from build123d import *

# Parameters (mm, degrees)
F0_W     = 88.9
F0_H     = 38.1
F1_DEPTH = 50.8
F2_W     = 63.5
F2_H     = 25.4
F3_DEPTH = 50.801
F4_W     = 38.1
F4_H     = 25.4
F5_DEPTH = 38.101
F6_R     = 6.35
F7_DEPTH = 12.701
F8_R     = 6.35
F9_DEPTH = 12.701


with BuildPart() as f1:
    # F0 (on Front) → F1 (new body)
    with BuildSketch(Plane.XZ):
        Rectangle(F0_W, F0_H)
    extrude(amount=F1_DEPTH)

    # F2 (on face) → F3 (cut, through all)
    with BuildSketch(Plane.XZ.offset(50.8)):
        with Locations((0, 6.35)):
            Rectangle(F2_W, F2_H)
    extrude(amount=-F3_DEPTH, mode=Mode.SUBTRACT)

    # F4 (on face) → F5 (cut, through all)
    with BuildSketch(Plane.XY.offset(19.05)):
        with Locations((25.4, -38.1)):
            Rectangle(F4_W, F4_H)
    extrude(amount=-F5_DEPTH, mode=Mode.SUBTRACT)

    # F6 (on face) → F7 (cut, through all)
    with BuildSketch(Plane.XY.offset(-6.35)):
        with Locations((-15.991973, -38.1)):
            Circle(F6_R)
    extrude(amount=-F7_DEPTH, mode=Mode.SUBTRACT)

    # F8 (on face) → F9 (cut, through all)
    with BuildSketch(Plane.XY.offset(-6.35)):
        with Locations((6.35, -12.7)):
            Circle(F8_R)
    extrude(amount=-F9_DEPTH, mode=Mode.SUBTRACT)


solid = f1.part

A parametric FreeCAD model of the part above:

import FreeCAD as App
import Part
import Sketcher
Q = App.Units.Quantity


def add_polygon(sketch, points):
    """Adds a closed chain of lines whose ends are joined by coincident constraints."""
    first, n = sketch.GeometryCount, len(points)
    for a, b in zip(points, points[1:] + points[:1]):
        sketch.addGeometry(Part.LineSegment(App.Vector(*a, 0), App.Vector(*b, 0)), False)
    for i in range(n):
        sketch.addConstraint(Sketcher.Constraint("Coincident", first + i, 2, first + (i + 1) % n, 1))

doc = App.newDocument("Part")
body = doc.addObject("PartDesign::Body", "Body")

# Sketch on XZ plane
sketch1 = body.newObject("Sketcher::SketchObject", "Sketch")
sketch1.AttachmentSupport = (doc.getObject("XZ_Plane"), [""])
sketch1.MapMode = "FlatFace"
add_polygon(sketch1, [(-44, 19), (-44, -19), (44, -19), (44, 19)])  # lines 0-3
sketch1.addConstraint([
    Sketcher.Constraint("Vertical", 0),
    Sketcher.Constraint("Horizontal", 1),
    Sketcher.Constraint("Vertical", 2),
    Sketcher.Constraint("Horizontal", 3),
    Sketcher.Constraint("Symmetric", 0, 2, 2, 2, -1, 1),
    Sketcher.Constraint("DistanceX", 1, 1, 1, 2, Q("3.5 in")),
    Sketcher.Constraint("DistanceY", 0, 2, 0, 1, Q("1.5 in")),
])
pad1 = body.newObject("PartDesign::Pad", "Pad")
pad1.Profile = sketch1
pad1.Length = Q("2 in")

# Sketch on XZ plane
sketch2 = body.newObject("Sketcher::SketchObject", "Sketch001")
sketch2.AttachmentSupport = (doc.getObject("XZ_Plane"), [""])
sketch2.MapMode = "FlatFace"
sketch2.AttachmentOffset = App.Placement(App.Vector(0, 0, 2 * 25.4), App.Rotation())
add_polygon(sketch2, [(-32, 19), (-32, -6), (32, -6), (32, 19)])  # lines 0-3
sketch2.addConstraint([
    Sketcher.Constraint("Vertical", 0),
    Sketcher.Constraint("Horizontal", 1),
    Sketcher.Constraint("Vertical", 2),
    Sketcher.Constraint("Horizontal", 3),
    Sketcher.Constraint("DistanceY", 0, 2, 0, 1, Q("1 in")),
    Sketcher.Constraint("DistanceX", 1, 1, 1, 2, Q("2.5 in")),
    Sketcher.Constraint("DistanceX", 0, 2, -1, 1, Q("1.25 in")),
    Sketcher.Constraint("DistanceY", 0, 2, -1, 1, Q("0.25 in")),
])
pocket1 = body.newObject("PartDesign::Pocket", "Pocket")
pocket1.Profile = sketch2
pocket1.Type = "ThroughAll"

# Sketch on XY plane
sketch3 = body.newObject("Sketcher::SketchObject", "Sketch002")
sketch3.AttachmentSupport = (doc.getObject("XY_Plane"), [""])
sketch3.MapMode = "FlatFace"
sketch3.AttachmentOffset = App.Placement(App.Vector(0, 0, 0.75 * 25.4), App.Rotation())
add_polygon(sketch3, [(6, -25), (6, -51), (44, -51), (44, -25)])  # lines 0-3
sketch3.addConstraint([
    Sketcher.Constraint("Vertical", 0),
    Sketcher.Constraint("Horizontal", 1),
    Sketcher.Constraint("Vertical", 2),
    Sketcher.Constraint("Horizontal", 3),
    Sketcher.Constraint("DistanceY", 0, 2, 0, 1, Q("1 in")),
    Sketcher.Constraint("DistanceX", 1, 1, 1, 2, Q("1.5 in")),
    Sketcher.Constraint("DistanceY", 0, 2, -1, 1, Q("2 in")),
    Sketcher.Constraint("DistanceX", -1, 1, 0, 2, Q("0.25 in")),
])
pocket2 = body.newObject("PartDesign::Pocket", "Pocket001")
pocket2.Profile = sketch3
pocket2.Type = "ThroughAll"

# Sketch on XY plane
sketch4 = body.newObject("Sketcher::SketchObject", "Sketch003")
sketch4.AttachmentSupport = (doc.getObject("XY_Plane"), [""])
sketch4.MapMode = "FlatFace"
sketch4.AttachmentOffset = App.Placement(App.Vector(0, 0, -0.25 * 25.4), App.Rotation())
sketch4.addGeometry(Part.Circle(App.Vector(-16, -38, 0), App.Vector(0, 0, 1), 6), False)
sketch4.addConstraint([
    Sketcher.Constraint("Diameter", 0, Q("0.5 in")),
    Sketcher.Constraint("DistanceY", 0, 3, -1, 1, Q("1.5 in")),
    Sketcher.Constraint("DistanceX", 0, 3, -1, 1, Q("15.991973 mm")),
])
pocket3 = body.newObject("PartDesign::Pocket", "Pocket002")
pocket3.Profile = sketch4
pocket3.Type = "ThroughAll"

# Sketch on XY plane
sketch5 = body.newObject("Sketcher::SketchObject", "Sketch004")
sketch5.AttachmentSupport = (doc.getObject("XY_Plane"), [""])
sketch5.MapMode = "FlatFace"
sketch5.AttachmentOffset = App.Placement(App.Vector(0, 0, -0.25 * 25.4), App.Rotation())
sketch5.addGeometry(Part.Circle(App.Vector(6, -13, 0), App.Vector(0, 0, 1), 6), False)
sketch5.addConstraint([
    Sketcher.Constraint("Diameter", 0, Q("0.5 in")),
    Sketcher.Constraint("DistanceY", 0, 3, -1, 1, Q("0.5 in")),
    Sketcher.Constraint("DistanceX", -1, 1, 0, 3, Q("0.25 in")),
])
pocket4 = body.newObject("PartDesign::Pocket", "Pocket003")
pocket4.Profile = sketch5
pocket4.Type = "ThroughAll"

doc.recompute()
